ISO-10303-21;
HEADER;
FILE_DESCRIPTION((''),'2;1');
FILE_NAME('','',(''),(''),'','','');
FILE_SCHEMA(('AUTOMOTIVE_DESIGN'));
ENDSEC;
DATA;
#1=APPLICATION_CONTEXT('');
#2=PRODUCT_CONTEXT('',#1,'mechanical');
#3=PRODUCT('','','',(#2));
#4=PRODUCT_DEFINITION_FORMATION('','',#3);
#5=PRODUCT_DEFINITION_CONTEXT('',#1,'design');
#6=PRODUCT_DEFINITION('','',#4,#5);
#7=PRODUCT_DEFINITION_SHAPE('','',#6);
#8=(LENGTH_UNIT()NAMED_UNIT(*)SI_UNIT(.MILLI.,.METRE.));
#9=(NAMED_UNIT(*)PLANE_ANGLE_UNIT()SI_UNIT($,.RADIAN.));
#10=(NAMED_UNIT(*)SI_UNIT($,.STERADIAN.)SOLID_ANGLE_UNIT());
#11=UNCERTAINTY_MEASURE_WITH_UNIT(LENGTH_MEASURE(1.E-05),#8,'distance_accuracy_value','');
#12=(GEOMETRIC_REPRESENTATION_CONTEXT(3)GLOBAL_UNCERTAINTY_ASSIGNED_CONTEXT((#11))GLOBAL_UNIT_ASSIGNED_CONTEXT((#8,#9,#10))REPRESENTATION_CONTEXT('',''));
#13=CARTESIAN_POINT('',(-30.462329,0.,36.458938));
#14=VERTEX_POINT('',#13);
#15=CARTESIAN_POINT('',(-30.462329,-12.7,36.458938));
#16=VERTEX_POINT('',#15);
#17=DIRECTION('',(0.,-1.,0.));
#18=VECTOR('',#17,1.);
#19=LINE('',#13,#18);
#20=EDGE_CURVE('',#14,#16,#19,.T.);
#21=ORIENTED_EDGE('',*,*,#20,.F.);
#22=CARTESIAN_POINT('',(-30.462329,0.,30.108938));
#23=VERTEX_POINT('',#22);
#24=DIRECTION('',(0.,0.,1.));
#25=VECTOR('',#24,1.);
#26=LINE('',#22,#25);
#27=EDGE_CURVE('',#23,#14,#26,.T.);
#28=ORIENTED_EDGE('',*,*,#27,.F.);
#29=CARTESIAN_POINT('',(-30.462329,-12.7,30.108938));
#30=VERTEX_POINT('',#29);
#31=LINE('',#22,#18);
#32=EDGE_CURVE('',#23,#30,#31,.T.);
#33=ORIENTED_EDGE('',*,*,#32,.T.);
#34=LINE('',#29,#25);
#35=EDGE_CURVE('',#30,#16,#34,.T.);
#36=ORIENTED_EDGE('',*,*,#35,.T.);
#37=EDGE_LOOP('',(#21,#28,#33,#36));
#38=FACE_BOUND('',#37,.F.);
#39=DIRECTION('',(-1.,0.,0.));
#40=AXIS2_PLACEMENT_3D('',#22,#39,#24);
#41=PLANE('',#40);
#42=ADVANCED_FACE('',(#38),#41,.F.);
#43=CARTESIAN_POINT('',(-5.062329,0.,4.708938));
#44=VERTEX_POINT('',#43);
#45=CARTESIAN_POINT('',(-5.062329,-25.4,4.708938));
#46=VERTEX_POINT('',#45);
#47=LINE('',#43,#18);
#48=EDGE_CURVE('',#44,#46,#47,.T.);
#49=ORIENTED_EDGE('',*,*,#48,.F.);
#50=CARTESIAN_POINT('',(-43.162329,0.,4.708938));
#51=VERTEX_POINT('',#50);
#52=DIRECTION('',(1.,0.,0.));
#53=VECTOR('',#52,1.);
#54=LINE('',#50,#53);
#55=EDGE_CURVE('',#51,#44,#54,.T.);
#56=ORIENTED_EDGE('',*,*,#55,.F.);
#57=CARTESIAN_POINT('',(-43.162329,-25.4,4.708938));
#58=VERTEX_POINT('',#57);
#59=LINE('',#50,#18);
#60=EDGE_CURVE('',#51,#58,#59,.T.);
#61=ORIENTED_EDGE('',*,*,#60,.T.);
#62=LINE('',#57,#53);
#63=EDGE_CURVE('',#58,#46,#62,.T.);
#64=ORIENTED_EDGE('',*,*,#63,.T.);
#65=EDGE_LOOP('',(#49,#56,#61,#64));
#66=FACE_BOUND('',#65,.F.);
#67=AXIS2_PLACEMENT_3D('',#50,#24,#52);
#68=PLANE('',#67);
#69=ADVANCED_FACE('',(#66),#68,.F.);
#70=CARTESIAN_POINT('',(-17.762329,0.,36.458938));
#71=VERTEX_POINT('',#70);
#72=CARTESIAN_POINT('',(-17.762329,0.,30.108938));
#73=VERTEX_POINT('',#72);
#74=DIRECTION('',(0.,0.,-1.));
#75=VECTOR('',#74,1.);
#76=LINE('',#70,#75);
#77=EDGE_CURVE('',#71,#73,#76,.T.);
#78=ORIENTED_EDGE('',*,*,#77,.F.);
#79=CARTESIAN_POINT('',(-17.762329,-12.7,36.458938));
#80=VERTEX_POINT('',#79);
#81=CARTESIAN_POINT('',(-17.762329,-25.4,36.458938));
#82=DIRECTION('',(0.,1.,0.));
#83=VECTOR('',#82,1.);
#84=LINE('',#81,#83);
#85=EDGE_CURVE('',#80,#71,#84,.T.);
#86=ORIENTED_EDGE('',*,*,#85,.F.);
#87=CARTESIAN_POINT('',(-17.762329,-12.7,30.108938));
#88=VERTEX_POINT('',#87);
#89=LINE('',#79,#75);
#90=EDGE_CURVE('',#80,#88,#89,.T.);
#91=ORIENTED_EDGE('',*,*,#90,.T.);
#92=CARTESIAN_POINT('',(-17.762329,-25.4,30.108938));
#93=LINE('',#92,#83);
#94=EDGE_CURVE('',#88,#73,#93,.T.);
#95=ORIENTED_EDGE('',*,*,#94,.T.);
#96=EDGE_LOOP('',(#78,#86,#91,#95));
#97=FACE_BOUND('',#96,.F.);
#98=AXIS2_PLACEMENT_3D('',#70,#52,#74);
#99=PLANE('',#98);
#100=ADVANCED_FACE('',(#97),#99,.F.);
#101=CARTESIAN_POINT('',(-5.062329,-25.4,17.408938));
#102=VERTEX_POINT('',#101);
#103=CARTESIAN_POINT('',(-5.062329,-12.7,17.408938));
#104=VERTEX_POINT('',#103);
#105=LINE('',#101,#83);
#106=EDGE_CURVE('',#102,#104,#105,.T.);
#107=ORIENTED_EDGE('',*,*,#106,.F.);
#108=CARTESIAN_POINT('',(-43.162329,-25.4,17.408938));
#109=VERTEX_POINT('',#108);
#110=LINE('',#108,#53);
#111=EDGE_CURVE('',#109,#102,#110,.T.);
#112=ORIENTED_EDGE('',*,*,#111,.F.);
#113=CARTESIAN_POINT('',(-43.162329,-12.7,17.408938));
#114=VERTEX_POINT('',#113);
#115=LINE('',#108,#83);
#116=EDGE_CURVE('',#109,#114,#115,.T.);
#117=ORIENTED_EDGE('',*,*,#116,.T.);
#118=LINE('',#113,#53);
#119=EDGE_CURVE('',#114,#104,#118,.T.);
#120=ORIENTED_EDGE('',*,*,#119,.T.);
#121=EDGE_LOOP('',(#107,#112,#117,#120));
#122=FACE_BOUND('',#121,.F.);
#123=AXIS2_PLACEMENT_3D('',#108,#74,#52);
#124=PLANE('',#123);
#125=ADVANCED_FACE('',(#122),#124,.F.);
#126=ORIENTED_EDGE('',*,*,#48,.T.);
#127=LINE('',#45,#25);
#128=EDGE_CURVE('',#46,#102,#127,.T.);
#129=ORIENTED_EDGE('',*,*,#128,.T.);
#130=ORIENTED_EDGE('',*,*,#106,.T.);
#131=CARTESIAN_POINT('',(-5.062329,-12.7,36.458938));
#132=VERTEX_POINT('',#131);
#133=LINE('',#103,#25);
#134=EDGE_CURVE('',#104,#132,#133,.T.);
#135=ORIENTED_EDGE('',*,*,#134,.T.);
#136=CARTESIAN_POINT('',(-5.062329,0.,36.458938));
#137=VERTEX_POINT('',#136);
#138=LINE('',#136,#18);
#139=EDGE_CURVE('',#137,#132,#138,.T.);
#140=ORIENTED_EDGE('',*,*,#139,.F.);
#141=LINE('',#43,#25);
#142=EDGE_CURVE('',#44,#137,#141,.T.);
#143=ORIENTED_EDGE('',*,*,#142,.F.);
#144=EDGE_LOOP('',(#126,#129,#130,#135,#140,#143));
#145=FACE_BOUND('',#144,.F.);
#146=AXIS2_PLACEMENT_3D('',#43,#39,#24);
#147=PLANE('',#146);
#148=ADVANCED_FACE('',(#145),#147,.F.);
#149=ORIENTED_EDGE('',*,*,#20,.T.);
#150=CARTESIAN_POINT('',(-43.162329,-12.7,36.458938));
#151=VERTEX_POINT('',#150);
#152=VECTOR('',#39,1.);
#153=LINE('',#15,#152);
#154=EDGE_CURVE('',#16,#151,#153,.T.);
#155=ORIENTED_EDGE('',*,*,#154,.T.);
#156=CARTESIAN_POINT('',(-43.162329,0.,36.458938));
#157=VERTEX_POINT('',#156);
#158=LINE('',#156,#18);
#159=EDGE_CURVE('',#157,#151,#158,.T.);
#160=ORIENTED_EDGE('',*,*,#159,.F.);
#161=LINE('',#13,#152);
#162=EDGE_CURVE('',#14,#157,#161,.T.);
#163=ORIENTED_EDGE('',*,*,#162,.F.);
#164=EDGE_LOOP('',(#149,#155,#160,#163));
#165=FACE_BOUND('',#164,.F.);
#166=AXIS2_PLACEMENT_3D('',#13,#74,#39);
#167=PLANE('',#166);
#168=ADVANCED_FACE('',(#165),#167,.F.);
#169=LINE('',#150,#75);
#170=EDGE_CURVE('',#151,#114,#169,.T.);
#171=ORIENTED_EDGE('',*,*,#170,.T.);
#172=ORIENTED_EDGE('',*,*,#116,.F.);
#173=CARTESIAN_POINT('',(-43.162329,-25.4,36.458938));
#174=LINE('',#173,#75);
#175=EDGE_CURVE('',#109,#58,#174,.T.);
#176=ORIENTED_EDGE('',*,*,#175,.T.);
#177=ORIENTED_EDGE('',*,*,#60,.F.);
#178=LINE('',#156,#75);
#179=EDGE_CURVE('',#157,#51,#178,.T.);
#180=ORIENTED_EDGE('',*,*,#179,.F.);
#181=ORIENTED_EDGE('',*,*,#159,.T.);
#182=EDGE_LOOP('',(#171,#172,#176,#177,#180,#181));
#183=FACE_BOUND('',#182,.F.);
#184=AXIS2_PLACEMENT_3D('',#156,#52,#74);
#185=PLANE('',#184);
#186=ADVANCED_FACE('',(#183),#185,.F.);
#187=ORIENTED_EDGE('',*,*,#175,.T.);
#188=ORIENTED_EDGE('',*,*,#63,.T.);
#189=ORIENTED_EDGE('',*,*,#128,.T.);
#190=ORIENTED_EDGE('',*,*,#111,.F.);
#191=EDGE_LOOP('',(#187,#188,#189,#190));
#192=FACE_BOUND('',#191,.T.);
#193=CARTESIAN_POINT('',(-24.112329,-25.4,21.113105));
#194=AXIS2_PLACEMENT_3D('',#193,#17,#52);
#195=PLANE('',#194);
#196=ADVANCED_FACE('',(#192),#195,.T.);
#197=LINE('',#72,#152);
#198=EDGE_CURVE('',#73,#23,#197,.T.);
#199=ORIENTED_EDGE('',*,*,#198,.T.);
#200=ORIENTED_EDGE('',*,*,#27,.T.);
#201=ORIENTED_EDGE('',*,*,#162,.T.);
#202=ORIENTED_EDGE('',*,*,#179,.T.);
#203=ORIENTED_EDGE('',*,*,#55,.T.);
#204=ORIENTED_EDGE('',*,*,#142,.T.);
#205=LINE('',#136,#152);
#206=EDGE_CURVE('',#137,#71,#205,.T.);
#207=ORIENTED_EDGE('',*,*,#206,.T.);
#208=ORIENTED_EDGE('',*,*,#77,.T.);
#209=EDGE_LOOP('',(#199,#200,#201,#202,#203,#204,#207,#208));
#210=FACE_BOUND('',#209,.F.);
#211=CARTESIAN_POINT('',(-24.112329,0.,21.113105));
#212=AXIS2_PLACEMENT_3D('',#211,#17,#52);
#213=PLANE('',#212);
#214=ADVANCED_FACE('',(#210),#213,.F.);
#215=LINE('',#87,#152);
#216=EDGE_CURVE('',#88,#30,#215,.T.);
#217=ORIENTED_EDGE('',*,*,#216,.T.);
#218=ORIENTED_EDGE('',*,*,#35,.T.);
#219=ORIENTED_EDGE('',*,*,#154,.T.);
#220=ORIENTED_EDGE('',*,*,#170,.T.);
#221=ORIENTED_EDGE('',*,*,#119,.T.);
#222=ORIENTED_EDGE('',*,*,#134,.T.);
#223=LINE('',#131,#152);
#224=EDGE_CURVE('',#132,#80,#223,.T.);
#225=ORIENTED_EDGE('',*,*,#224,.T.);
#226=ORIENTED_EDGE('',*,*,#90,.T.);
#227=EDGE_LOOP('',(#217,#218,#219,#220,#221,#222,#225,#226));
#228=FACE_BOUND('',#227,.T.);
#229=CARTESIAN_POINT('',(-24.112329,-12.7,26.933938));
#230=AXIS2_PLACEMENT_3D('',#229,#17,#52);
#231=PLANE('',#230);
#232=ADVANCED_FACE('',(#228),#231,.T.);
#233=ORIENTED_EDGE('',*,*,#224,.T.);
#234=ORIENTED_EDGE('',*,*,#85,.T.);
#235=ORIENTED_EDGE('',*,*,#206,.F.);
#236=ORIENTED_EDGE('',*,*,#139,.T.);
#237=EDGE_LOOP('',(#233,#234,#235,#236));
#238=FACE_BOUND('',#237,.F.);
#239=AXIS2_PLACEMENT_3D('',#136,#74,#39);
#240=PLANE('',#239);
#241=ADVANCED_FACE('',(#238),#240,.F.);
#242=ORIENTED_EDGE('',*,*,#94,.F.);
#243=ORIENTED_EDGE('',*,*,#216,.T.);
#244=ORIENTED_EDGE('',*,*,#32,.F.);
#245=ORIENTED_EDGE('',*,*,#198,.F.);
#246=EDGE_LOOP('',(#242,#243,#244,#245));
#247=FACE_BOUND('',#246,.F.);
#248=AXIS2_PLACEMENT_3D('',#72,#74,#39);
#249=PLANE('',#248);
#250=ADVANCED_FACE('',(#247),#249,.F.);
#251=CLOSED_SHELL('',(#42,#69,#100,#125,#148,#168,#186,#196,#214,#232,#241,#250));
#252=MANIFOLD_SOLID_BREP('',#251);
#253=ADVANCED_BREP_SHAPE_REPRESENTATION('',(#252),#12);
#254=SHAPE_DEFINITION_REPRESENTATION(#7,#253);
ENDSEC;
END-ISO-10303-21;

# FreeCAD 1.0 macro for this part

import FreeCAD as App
import Part
import Sketcher
from FreeCAD import Vector
Q = App.Units.Quantity


def add_polygon(sketch, points):
    """Adds a closed chain of lines whose ends are joined by coincident constraints."""
    first, n = sketch.GeometryCount, len(points)
    for a, b in zip(points, points[1:] + points[:1]):
        sketch.addGeometry(Part.LineSegment(App.Vector(*a, 0), App.Vector(*b, 0)), False)
    for i in range(n):
        sketch.addConstraint(Sketcher.Constraint("Coincident", first + i, 2, first + (i + 1) % n, 1))

doc = App.newDocument("Part")
body = doc.addObject("PartDesign::Body", "Body")

sketch1 = body.newObject("Sketcher::SketchObject", "Sketch")
sketch1.AttachmentSupport = (doc.getObject("XZ_Plane"), [""])
sketch1.MapMode = "FlatFace"
add_polygon(sketch1, [(-30, 36), (-43, 36), (-43, 5), (-5, 5), (-5, 36), (-18, 36), (-18, 30), (-30, 30)])
sketch1.addConstraint(Sketcher.Constraint("Horizontal", 0))
sketch1.addConstraint(Sketcher.Constraint("Vertical", 1))
sketch1.addConstraint(Sketcher.Constraint("Horizontal", 2))
sketch1.addConstraint(Sketcher.Constraint("Vertical", 3))
sketch1.addConstraint(Sketcher.Constraint("Horizontal", 4))
sketch1.addConstraint(Sketcher.Constraint("Vertical", 5))
sketch1.addConstraint(Sketcher.Constraint("Horizontal", 6))
sketch1.addConstraint(Sketcher.Constraint("Vertical", 7))
sketch1.addConstraint(Sketcher.Constraint("Horizontal", 0, 2, 3, 2))
sketch1.addConstraint(Sketcher.Constraint("Equal", 0, 4))
sketch1.addConstraint(Sketcher.Constraint("Equal", 4, 6))
sketch1.addConstraint(Sketcher.Constraint("DistanceX", 0, 2, 0, 1, Q("0.5 in")))
sketch1.addConstraint(Sketcher.Constraint("DistanceY", 2, 2, 5, 2, Q("1 in")))
sketch1.addConstraint(Sketcher.Constraint("DistanceY", 1, 2, 1, 1, Q("1.25 in")))
sketch1.addConstraint(Sketcher.Constraint("DistanceX", 0, 2, -1, 1, 43.162329))
sketch1.addConstraint(Sketcher.Constraint("DistanceY", -1, 1, 0, 2, 36.458938))
pad1 = body.newObject("PartDesign::Pad", "Pad")
pad1.Profile = sketch1
pad1.Length = Q("1 in")

sketch2 = body.newObject("Sketcher::SketchObject", "Sketch001")
sketch2.AttachmentSupport = (doc.getObject("XZ_Plane"), [""])
sketch2.MapMode = "FlatFace"
sketch2.AttachmentOffset = App.Placement(Vector(0, 0, 1 * 25.4), App.Rotation())
add_polygon(sketch2, [(-18, 30), (-30, 30), (-30, 36), (-43, 36), (-43, 5), (-5, 5), (-5, 36), (-18, 36)])
sketch2.addConstraint(Sketcher.Constraint("Horizontal", 0))
sketch2.addConstraint(Sketcher.Constraint("Vertical", 1))
sketch2.addConstraint(Sketcher.Constraint("Horizontal", 2))
sketch2.addConstraint(Sketcher.Constraint("Vertical", 3))
sketch2.addConstraint(Sketcher.Constraint("Horizontal", 4))
sketch2.addConstraint(Sketcher.Constraint("Vertical", 5))
sketch2.addConstraint(Sketcher.Constraint("Horizontal", 6))
sketch2.addConstraint(Sketcher.Constraint("Vertical", 7))
sketch2.addConstraint(Sketcher.Constraint("Horizontal", 2, 2, 5, 2))
sketch2.addConstraint(Sketcher.Constraint("Equal", 0, 2))
sketch2.addConstraint(Sketcher.Constraint("Equal", 2, 6))
sketch2.addConstraint(Sketcher.Constraint("DistanceX", 0, 2, 0, 1, Q("0.5 in")))
sketch2.addConstraint(Sketcher.Constraint("DistanceY", 3, 2, 0, 2, Q("1 in")))
sketch2.addConstraint(Sketcher.Constraint("DistanceY", 1, 1, 1, 2, Q("0.25 in")))
sketch2.addConstraint(Sketcher.Constraint("DistanceX", 0, 2, -1, 1, 30.462329))
sketch2.addConstraint(Sketcher.Constraint("DistanceY", -1, 1, 1, 2, 36.458938))
pad2 = body.newObject("PartDesign::Pad", "Pad001")
pad2.Profile = sketch2
pad2.Length = Q("0.5 in")
pad2.Reversed = True

sketch3 = body.newObject("Sketcher::SketchObject", "Sketch002")
sketch3.AttachmentSupport = (doc.getObject("XZ_Plane"), [""])
sketch3.MapMode = "FlatFace"
sketch3.AttachmentOffset = App.Placement(Vector(0, 0, 1 * 25.4), App.Rotation())
add_polygon(sketch3, [(-43, 36), (-43, 17), (-5, 17), (-5, 36), (-18, 36), (-18, 30), (-30, 30), (-30, 36)])
sketch3.addConstraint(Sketcher.Constraint("Vertical", 0))
sketch3.addConstraint(Sketcher.Constraint("Horizontal", 1))
sketch3.addConstraint(Sketcher.Constraint("Vertical", 2))
sketch3.addConstraint(Sketcher.Constraint("Horizontal", 3))
sketch3.addConstraint(Sketcher.Constraint("Vertical", 4))
sketch3.addConstraint(Sketcher.Constraint("Horizontal", 5))
sketch3.addConstraint(Sketcher.Constraint("Vertical", 6))
sketch3.addConstraint(Sketcher.Constraint("Horizontal", 7))
sketch3.addConstraint(Sketcher.Constraint("Horizontal", 3, 2, 6, 2))
sketch3.addConstraint(Sketcher.Constraint("Equal", 3, 5))
sketch3.addConstraint(Sketcher.Constraint("Equal", 5, 7))
sketch3.addConstraint(Sketcher.Constraint("DistanceX", 1, 1, 1, 2, Q("1.5 in")))
sketch3.addConstraint(Sketcher.Constraint("DistanceY", 0, 2, 0, 1, Q("0.75 in")))
sketch3.addConstraint(Sketcher.Constraint("DistanceY", 4, 2, 4, 1, Q("0.25 in")))
sketch3.addConstraint(Sketcher.Constraint("DistanceX", 0, 2, -1, 1, 43.162329))
sketch3.addConstraint(Sketcher.Constraint("DistanceY", -1, 1, 2, 2, 36.458938))
pocket1 = body.newObject("PartDesign::Pocket", "Pocket")
pocket1.Profile = sketch3
pocket1.Length = Q("0.5 in")

doc.recompute()
